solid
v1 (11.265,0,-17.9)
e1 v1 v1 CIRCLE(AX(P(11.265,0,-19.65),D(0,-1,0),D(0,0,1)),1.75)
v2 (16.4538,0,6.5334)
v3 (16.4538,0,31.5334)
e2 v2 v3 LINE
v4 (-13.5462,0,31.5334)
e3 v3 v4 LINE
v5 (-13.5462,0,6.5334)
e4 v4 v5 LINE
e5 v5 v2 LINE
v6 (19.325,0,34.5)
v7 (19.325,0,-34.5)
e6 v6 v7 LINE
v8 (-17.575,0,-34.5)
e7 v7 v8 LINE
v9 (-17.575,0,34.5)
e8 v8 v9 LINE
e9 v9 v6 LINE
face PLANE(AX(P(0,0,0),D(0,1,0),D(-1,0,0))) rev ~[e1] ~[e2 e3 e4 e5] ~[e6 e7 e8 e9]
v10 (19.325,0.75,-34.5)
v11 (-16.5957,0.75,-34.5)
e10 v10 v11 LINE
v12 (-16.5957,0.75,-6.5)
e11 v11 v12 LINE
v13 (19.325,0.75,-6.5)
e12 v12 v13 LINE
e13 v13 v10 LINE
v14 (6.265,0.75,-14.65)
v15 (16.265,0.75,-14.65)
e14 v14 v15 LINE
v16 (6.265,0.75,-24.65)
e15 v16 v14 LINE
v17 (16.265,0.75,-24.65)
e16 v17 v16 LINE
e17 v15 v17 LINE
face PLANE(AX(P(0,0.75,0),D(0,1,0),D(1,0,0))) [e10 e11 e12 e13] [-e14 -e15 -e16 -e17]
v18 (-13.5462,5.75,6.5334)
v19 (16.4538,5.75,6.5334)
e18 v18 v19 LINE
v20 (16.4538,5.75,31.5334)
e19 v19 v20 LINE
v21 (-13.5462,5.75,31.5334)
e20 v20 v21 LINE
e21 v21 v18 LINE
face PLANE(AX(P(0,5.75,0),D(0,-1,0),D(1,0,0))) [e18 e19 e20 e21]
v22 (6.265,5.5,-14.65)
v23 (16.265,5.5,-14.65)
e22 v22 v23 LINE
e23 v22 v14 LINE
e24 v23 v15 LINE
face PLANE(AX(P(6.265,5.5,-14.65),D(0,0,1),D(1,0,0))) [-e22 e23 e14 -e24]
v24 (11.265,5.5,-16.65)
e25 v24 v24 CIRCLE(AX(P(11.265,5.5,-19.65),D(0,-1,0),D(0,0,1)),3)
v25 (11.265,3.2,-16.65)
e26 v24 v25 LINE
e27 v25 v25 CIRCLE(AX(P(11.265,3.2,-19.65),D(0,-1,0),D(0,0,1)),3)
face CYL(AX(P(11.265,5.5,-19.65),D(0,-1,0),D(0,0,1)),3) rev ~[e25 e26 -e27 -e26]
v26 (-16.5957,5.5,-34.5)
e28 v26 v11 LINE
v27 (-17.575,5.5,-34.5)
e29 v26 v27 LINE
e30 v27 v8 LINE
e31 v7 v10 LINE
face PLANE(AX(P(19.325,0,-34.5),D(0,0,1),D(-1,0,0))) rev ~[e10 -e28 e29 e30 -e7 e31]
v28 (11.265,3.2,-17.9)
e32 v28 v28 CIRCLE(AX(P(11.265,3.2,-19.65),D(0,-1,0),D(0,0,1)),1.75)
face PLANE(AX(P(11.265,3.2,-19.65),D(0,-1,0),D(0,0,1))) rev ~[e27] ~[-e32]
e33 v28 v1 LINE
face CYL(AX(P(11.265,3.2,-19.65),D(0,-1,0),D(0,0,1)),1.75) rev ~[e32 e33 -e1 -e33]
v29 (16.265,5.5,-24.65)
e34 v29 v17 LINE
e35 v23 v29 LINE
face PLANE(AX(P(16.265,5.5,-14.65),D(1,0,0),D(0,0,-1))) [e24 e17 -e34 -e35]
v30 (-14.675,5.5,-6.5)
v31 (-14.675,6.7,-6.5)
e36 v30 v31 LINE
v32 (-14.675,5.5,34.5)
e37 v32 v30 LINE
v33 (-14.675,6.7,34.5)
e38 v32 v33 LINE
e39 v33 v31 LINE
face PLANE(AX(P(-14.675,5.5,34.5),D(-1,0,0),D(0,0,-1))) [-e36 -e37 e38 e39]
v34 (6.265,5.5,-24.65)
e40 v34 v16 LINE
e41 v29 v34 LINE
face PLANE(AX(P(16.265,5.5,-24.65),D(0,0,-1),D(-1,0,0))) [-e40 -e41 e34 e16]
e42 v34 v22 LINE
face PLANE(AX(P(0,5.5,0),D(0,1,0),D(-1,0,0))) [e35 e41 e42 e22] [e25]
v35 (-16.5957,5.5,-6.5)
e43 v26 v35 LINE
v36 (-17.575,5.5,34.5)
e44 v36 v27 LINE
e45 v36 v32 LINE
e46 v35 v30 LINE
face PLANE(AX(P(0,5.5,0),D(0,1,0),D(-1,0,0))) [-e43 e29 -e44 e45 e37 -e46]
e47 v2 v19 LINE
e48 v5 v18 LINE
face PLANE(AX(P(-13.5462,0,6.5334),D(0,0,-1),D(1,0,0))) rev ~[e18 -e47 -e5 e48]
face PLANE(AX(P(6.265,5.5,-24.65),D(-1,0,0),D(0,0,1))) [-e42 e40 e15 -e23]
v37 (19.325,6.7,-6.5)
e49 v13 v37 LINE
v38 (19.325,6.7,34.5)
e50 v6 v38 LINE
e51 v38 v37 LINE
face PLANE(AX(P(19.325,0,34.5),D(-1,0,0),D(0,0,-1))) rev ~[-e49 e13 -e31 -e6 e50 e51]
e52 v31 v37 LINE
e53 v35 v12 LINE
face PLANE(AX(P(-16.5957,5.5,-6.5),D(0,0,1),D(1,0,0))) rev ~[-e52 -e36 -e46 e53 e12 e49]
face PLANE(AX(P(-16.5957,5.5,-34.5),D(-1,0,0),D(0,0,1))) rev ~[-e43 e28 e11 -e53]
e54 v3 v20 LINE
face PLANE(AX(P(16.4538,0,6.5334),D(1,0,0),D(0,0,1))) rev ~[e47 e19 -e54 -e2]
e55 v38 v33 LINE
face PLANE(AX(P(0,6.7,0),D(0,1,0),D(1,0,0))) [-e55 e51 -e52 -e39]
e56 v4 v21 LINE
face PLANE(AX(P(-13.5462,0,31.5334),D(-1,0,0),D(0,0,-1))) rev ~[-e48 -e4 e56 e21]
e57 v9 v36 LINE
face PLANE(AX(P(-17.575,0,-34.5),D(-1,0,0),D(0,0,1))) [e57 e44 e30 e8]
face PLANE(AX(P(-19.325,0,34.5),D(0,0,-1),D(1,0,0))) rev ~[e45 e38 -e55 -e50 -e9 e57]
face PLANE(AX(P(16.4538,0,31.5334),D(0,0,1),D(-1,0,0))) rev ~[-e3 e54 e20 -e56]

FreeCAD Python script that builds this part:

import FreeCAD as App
import Part
import Sketcher
from FreeCAD import Vector
Q = App.Units.Quantity


def add_polygon(sketch, points):
    """Adds a closed chain of lines whose ends are joined by coincident constraints."""
    first, n = sketch.GeometryCount, len(points)
    for a, b in zip(points, points[1:] + points[:1]):
        sketch.addGeometry(Part.LineSegment(App.Vector(*a, 0), App.Vector(*b, 0)), False)
    for i in range(n):
        sketch.addConstraint(Sketcher.Constraint("Coincident", first + i, 2, first + (i + 1) % n, 1))

doc = App.newDocument("Part")
body = doc.addObject("PartDesign::Body", "Body")

# Sketch on XZ plane
sketch1 = body.newObject("Sketcher::SketchObject", "Sketch")
sketch1.AttachmentSupport = (doc.getObject("XZ_Plane"), [""])
sketch1.MapMode = "FlatFace"
add_polygon(sketch1, [(-19, -34), (-19, 34), (19, 34), (19, -34)])  # lines 0-3
sketch1.addConstraint(Sketcher.Constraint("Vertical", 0))
sketch1.addConstraint(Sketcher.Constraint("Horizontal", 1))
sketch1.addConstraint(Sketcher.Constraint("Vertical", 2))
sketch1.addConstraint(Sketcher.Constraint("Horizontal", 3))
sketch1.addConstraint(Sketcher.Constraint("Symmetric", 0, 2, 2, 2, -1, 1))
sketch1.addConstraint(Sketcher.Constraint("DistanceY", 0, 1, 0, 2, Q("69 mm")))
sketch1.addConstraint(Sketcher.Constraint("DistanceX", 1, 1, 1, 2, Q("38.65 mm")))
pad1 = body.newObject("PartDesign::Pad", "Pad")
pad1.Profile = sketch1
pad1.Length = 5.5
pad1.Reversed = True

# Sketch on XZ plane
sketch2 = body.newObject("Sketcher::SketchObject", "Sketch001")
sketch2.AttachmentSupport = (doc.getObject("XZ_Plane"), [""])
sketch2.MapMode = "FlatFace"
sketch2.AttachmentOffset = App.Placement(Vector(0, 0, -5.5), App.Rotation())
add_polygon(sketch2, [(-15, 34), (19, 34), (19, -6), (-15, -6)])  # lines 0-3
sketch2.addConstraint(Sketcher.Constraint("Horizontal", 0))
sketch2.addConstraint(Sketcher.Constraint("Vertical", 1))
sketch2.addConstraint(Sketcher.Constraint("Horizontal", 2))
sketch2.addConstraint(Sketcher.Constraint("Vertical", 3))
sketch2.addConstraint(Sketcher.Constraint("DistanceX", 0, 1, 0, 2, Q("34 mm")))
sketch2.addConstraint(Sketcher.Constraint("DistanceY", 1, 2, 1, 1, Q("41 mm")))
sketch2.addConstraint(Sketcher.Constraint("DistanceY", -1, 1, 0, 2, Q("34.5 mm")))
sketch2.addConstraint(Sketcher.Constraint("DistanceX", -1, 1, 0, 2, Q("19.325 mm")))
pad2 = body.newObject("PartDesign::Pad", "Pad001")
pad2.Profile = sketch2
pad2.Length = 1.2
pad2.Reversed = True

# Sketch on XZ plane
sketch3 = body.newObject("Sketcher::SketchObject", "Sketch002")
sketch3.AttachmentSupport = (doc.getObject("XZ_Plane"), [""])
sketch3.MapMode = "FlatFace"
sketch3.AttachmentOffset = App.Placement(Vector(0, 0, -5.5), App.Rotation())
sketch3.addGeometry(Part.Circle(Vector(11.3, -19.6, 0), Vector(0, 0, 1), 1.8), False)
sketch3.addConstraint(Sketcher.Constraint("Diameter", 0, Q("3.5 mm")))
sketch3.addConstraint(Sketcher.Constraint("DistanceY", 0, 3, -1, 1, Q("19.65 mm")))
sketch3.addConstraint(Sketcher.Constraint("DistanceX", -1, 1, 0, 3, Q("11.265 mm")))
doc.recompute()
hole = body.newObject("PartDesign::Hole", "Hole")
hole.Profile = sketch3
hole.ThreadType = "None"
hole.Diameter = 3.5
hole.DepthType = "Dimension"
hole.Depth = 10.5
hole.DrillPoint = "Angled"
hole.DrillPointAngle = 118
hole.HoleCutType = "Counterbore"
hole.HoleCutDiameter = 6
hole.HoleCutDepth = 2.3
hole.Reversed = True

# Sketch on XZ plane
sketch4 = body.newObject("Sketcher::SketchObject", "Sketch003")
sketch4.AttachmentSupport = (doc.getObject("XZ_Plane"), [""])
sketch4.MapMode = "FlatFace"
sketch4.AttachmentOffset = App.Placement(Vector(0, 0, -5.5), App.Rotation())
add_polygon(sketch4, [(-17, -6), (19, -6), (19, -34), (-17, -34)])  # lines 0-3
add_polygon(sketch4, [(6, -25), (16, -25), (16, -15), (6, -15)])  # lines 4-7
sketch4.addConstraint(Sketcher.Constraint("Horizontal", 0))
sketch4.addConstraint(Sketcher.Constraint("Vertical", 1))
sketch4.addConstraint(Sketcher.Constraint("Horizontal", 2))
sketch4.addConstraint(Sketcher.Constraint("Vertical", 3))
sketch4.addConstraint(Sketcher.Constraint("Horizontal", 4))
sketch4.addConstraint(Sketcher.Constraint("Vertical", 5))
sketch4.addConstraint(Sketcher.Constraint("Horizontal", 6))
sketch4.addConstraint(Sketcher.Constraint("Vertical", 7))
sketch4.addConstraint(Sketcher.Constraint("Equal", 6, 5))
sketch4.addConstraint(Sketcher.Constraint("DistanceX", 4, 1, 4, 2, Q("10 mm")))
sketch4.addConstraint(Sketcher.Constraint("DistanceY", 1, 2, 1, 1, Q("28 mm")))
sketch4.addConstraint(Sketcher.Constraint("DistanceY", 0, 2, -1, 1, Q("6.5 mm")))
sketch4.addConstraint(Sketcher.Constraint("DistanceY", 4, 2, -1, 1, Q("24.65 mm")))
sketch4.addConstraint(Sketcher.Constraint("DistanceX", 4, 2, 1, 2, Q("3.06 mm")))
sketch4.addConstraint(Sketcher.Constraint("DistanceX", 0, 1, 0, 2, Q("35.9207 mm")))
sketch4.addConstraint(Sketcher.Constraint("DistanceX", -1, 1, 0, 2, Q("19.325 mm")))
pocket1 = body.newObject("PartDesign::Pocket", "Pocket")
pocket1.Profile = sketch4
pocket1.Length = 4.75
pocket1.Reversed = True

# Sketch on XZ plane
sketch5 = body.newObject("Sketcher::SketchObject", "Sketch004")
sketch5.AttachmentSupport = (doc.getObject("XZ_Plane"), [""])
sketch5.MapMode = "FlatFace"
add_polygon(sketch5, [(-14, 32), (-14, 7), (16, 7), (16, 32)])  # lines 0-3
sketch5.addConstraint(Sketcher.Constraint("Vertical", 0))
sketch5.addConstraint(Sketcher.Constraint("Horizontal", 1))
sketch5.addConstraint(Sketcher.Constraint("Vertical", 2))
sketch5.addConstraint(Sketcher.Constraint("Horizontal", 3))
sketch5.addConstraint(Sketcher.Constraint("DistanceX", 1, 1, 1, 2, Q("30 mm")))
sketch5.addConstraint(Sketcher.Constraint("DistanceY", 0, 2, 0, 1, Q("25 mm")))
sketch5.addConstraint(Sketcher.Constraint("DistanceX", 0, 2, -1, 1, Q("13.5462 mm")))
sketch5.addConstraint(Sketcher.Constraint("DistanceY", -1, 1, 0, 2, Q("6.5334 mm")))
pocket2 = body.newObject("PartDesign::Pocket", "Pocket001")
pocket2.Profile = sketch5
pocket2.Length = 5.75

# Sketch on YZ plane
sketch6 = body.newObject("Sketcher::SketchObject", "Sketch005")
sketch6.AttachmentSupport = (doc.getObject("YZ_Plane"), [""])
sketch6.MapMode = "FlatFace"
sketch6.AttachmentOffset = App.Placement(Vector(0, 0, -19.325), App.Rotation())
add_polygon(sketch6, [(6, -34), (0, -34), (0, 34), (6, 34)])  # lines 0-3
sketch6.addConstraint(Sketcher.Constraint("Horizontal", 0))
sketch6.addConstraint(Sketcher.Constraint("Vertical", 1))
sketch6.addConstraint(Sketcher.Constraint("Horizontal", 2))
sketch6.addConstraint(Sketcher.Constraint("Vertical", 3))
sketch6.addConstraint(Sketcher.Constraint("Symmetric", 0, 2, 1, 2, -1, 1))
sketch6.addConstraint(Sketcher.Constraint("DistanceY", 1, 1, 1, 2, Q("69 mm")))
sketch6.addConstraint(Sketcher.Constraint("DistanceX", 0, 2, 0, 1, Q("5.5 mm")))
pocket3 = body.newObject("PartDesign::Pocket", "Pocket002")
pocket3.Profile = sketch6
pocket3.Length = 1.75
pocket3.Reversed = True

doc.recompute()
